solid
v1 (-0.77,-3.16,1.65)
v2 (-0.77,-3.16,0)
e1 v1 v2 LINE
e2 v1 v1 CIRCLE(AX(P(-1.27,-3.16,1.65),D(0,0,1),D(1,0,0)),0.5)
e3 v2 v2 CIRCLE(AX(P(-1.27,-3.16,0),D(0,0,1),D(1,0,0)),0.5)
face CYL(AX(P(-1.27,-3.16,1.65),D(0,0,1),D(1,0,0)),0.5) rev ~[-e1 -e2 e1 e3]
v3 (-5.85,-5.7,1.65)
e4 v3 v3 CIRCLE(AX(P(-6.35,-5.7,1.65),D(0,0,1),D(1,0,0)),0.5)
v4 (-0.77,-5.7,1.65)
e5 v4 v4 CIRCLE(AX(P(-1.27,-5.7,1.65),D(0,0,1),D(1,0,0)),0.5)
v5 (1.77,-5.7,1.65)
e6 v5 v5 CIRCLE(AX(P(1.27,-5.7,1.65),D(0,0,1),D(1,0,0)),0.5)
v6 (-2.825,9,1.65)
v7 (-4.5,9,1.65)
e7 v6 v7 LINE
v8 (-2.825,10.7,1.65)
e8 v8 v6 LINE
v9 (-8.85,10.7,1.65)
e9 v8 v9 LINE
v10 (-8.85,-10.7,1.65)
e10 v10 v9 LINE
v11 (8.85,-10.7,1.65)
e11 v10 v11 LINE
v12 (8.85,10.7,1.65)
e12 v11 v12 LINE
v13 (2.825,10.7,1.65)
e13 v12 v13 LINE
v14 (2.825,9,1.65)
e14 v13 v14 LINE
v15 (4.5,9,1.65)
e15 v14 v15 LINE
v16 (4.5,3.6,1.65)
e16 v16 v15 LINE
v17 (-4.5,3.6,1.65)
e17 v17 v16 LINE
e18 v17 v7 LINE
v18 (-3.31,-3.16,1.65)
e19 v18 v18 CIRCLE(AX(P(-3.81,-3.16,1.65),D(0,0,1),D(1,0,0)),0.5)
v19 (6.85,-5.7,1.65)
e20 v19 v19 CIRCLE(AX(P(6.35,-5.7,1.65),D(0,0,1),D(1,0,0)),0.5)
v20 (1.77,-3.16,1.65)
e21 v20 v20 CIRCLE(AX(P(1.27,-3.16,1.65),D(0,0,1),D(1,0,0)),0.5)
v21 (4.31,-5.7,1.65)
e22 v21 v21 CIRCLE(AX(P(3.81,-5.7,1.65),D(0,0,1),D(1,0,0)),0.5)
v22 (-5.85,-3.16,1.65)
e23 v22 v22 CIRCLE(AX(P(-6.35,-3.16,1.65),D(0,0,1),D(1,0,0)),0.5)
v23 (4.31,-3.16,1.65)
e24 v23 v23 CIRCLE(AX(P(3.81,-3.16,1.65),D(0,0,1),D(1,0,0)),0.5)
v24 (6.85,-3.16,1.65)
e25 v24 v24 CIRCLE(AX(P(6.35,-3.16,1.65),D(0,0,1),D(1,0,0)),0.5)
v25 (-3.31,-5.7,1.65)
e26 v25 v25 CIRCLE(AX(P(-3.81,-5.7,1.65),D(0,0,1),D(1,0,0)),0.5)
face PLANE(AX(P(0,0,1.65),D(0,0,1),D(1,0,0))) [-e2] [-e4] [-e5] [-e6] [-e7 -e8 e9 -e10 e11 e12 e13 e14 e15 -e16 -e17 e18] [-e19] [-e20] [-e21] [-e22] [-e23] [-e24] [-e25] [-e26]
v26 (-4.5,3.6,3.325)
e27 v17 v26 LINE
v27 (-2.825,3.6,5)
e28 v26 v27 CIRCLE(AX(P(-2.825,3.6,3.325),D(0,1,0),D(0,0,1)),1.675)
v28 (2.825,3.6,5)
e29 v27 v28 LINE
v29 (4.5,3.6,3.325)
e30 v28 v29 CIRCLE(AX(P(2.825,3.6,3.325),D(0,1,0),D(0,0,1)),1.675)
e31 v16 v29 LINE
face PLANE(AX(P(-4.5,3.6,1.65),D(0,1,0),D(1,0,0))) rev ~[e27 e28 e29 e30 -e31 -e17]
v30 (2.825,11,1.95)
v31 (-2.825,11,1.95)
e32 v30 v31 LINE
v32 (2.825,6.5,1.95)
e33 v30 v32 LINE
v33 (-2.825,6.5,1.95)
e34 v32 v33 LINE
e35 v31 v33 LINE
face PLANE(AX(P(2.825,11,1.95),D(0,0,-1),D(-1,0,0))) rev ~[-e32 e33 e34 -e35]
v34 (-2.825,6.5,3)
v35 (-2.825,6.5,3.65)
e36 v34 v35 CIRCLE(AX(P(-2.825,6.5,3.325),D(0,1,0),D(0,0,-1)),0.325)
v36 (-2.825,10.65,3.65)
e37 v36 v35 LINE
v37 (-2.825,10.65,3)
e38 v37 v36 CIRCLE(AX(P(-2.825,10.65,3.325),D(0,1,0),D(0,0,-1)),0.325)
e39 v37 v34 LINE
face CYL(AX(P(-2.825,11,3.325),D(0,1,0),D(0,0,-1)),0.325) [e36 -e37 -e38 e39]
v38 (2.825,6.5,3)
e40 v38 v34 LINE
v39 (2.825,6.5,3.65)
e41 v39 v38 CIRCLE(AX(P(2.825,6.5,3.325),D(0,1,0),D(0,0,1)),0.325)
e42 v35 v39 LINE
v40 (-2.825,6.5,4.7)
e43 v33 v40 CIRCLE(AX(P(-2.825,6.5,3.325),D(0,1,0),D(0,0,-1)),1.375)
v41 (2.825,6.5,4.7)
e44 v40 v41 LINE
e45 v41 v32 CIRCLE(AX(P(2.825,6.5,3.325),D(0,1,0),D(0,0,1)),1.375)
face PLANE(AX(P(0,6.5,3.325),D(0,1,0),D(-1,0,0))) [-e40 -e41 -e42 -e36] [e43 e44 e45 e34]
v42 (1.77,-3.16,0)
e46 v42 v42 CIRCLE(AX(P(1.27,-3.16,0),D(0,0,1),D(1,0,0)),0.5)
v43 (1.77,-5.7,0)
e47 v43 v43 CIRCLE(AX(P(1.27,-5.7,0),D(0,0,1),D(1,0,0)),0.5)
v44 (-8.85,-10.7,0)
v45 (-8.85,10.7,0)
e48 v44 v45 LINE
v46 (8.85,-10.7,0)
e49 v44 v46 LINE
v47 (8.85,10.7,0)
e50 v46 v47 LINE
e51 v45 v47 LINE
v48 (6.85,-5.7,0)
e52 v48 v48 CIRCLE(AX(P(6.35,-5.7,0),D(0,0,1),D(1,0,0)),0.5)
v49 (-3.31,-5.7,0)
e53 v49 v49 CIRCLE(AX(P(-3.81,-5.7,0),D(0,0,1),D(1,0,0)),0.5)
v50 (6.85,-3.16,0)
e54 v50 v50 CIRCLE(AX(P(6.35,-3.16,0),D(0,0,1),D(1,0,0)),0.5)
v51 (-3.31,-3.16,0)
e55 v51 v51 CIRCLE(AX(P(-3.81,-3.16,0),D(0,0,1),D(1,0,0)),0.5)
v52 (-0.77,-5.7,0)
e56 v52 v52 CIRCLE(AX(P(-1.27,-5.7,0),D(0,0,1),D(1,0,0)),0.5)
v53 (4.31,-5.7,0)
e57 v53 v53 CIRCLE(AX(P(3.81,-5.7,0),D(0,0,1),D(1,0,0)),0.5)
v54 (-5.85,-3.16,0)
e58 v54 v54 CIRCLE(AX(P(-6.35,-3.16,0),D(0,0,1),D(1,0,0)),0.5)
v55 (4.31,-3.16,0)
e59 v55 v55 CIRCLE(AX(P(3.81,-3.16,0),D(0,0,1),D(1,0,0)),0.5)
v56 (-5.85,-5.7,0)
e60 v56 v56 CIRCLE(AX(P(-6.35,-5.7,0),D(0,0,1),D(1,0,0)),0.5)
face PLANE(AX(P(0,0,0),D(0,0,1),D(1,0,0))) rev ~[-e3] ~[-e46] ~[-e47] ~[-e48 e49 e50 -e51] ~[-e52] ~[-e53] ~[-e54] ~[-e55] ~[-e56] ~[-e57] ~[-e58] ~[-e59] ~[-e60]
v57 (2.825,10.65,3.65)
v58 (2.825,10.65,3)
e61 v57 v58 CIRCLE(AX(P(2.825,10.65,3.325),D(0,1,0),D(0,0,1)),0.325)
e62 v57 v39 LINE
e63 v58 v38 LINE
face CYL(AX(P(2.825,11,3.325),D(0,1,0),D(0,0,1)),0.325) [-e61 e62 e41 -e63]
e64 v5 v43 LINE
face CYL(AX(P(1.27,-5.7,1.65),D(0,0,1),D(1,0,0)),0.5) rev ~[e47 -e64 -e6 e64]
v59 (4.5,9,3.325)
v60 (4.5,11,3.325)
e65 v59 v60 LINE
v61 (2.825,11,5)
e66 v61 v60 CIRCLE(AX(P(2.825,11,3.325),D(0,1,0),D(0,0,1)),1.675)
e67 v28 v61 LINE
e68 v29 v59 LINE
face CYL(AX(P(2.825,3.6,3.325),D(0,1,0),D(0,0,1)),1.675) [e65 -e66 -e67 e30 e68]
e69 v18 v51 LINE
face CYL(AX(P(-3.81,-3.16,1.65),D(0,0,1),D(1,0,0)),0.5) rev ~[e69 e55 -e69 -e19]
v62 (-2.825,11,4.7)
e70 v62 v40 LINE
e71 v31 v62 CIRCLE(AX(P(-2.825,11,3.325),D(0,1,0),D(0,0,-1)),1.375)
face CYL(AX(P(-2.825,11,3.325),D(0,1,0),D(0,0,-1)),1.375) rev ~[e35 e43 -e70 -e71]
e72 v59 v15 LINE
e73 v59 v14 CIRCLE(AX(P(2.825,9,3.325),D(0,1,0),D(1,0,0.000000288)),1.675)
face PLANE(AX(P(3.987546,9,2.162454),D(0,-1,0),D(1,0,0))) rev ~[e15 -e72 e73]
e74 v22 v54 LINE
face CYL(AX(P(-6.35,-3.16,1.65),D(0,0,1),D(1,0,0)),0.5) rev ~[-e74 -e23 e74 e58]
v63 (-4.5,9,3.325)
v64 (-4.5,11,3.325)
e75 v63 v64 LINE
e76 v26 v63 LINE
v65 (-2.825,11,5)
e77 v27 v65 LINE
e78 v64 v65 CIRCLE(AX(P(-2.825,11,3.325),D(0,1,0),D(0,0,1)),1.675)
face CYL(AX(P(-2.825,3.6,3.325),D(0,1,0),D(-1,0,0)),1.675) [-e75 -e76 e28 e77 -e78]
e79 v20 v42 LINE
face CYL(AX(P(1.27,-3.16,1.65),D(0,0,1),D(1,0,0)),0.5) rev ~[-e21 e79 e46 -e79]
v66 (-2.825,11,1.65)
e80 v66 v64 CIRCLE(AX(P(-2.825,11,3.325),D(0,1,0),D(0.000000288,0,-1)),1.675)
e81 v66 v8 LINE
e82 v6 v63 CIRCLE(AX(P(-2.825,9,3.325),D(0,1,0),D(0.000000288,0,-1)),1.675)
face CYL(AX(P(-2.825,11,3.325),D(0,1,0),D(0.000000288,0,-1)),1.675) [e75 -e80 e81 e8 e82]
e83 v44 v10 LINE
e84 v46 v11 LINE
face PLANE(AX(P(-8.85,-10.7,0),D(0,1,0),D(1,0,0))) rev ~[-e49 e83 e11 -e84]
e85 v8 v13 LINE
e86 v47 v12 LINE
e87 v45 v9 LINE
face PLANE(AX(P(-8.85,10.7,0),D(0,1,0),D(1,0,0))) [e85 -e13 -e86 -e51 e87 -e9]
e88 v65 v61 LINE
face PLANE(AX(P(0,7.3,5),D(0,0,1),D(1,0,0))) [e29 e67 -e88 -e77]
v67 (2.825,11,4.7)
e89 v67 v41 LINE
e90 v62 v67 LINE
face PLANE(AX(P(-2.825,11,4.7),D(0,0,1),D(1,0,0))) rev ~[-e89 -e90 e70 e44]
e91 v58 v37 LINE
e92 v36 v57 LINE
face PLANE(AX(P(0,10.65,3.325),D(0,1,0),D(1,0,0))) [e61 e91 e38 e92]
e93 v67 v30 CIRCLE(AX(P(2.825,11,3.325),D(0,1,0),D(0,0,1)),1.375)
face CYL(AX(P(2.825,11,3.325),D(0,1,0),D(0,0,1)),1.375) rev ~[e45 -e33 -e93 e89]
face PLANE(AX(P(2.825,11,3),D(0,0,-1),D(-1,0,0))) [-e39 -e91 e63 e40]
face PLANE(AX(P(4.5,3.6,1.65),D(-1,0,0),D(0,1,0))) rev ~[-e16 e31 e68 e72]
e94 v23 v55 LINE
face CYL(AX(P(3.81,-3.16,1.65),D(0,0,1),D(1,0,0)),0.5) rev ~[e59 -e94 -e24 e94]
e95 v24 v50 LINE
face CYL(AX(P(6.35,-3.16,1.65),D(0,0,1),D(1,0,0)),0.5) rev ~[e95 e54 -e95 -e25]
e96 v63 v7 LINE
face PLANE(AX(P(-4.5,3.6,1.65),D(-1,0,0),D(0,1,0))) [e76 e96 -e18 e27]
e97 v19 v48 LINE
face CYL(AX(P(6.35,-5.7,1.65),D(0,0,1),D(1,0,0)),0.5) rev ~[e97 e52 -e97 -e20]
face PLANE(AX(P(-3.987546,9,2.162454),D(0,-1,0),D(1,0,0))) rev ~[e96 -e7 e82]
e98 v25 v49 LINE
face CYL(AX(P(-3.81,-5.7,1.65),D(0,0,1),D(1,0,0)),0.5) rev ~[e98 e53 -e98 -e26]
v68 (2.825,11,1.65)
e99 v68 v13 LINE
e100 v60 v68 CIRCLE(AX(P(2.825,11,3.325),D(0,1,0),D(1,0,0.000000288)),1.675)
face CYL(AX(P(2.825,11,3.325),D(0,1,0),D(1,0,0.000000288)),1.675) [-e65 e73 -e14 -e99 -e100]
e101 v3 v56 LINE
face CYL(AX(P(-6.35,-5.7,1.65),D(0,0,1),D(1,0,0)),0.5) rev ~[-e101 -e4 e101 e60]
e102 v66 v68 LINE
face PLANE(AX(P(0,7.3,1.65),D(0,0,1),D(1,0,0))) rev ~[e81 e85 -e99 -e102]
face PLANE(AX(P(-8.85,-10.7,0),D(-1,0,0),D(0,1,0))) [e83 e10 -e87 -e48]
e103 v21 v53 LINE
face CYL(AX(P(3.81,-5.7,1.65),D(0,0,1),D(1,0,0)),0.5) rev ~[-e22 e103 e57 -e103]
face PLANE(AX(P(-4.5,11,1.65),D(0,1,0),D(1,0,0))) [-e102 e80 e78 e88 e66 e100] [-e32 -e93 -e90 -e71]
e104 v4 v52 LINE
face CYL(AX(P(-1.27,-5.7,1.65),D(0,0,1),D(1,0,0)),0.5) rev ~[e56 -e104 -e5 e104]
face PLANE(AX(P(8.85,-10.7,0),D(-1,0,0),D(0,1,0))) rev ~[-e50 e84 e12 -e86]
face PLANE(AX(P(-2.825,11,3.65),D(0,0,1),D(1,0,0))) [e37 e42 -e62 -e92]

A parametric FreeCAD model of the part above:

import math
import FreeCAD as App
import Part
import Sketcher

V = App.Vector
Q = App.Units.Quantity


def edges_at(feature, points):
    """Names of the edges that pass closest to the given points."""
    edges = feature.Shape.Edges
    near = lambda p: min(range(len(edges)), key=lambda i: edges[i].distToShape(Part.Vertex(*p))[0])
    return sorted({f"Edge{near(p) + 1}" for p in points})


def add_polygon(sketch, points):
    """Adds a closed chain of lines whose ends are joined by coincident constraints."""
    first, n = sketch.GeometryCount, len(points)
    for a, b in zip(points, points[1:] + points[:1]):
        sketch.addGeometry(Part.LineSegment(App.Vector(*a, 0), App.Vector(*b, 0)), False)
    for i in range(n):
        sketch.addConstraint(Sketcher.Constraint("Coincident", first + i, 2, first + (i + 1) % n, 1))

doc = App.newDocument("Part")
body = doc.addObject("PartDesign::Body", "Body")

# Sketch on XY plane
sketch1 = body.newObject("Sketcher::SketchObject", "Sketch")
sketch1.AttachmentSupport = (doc.getObject("XY_Plane"), [""])
sketch1.MapMode = "FlatFace"
add_polygon(sketch1, [(-9, 11), (-9, -11), (9, -11), (9, 11)])  # lines 0-3
sketch1.addConstraint(Sketcher.Constraint("Vertical", 0))
sketch1.addConstraint(Sketcher.Constraint("Horizontal", 1))
sketch1.addConstraint(Sketcher.Constraint("Vertical", 2))
sketch1.addConstraint(Sketcher.Constraint("Horizontal", 3))
sketch1.addConstraint(Sketcher.Constraint("Symmetric", 0, 2, 2, 2, -1, 1))
sketch1.addConstraint(Sketcher.Constraint("DistanceX", 1, 1, 1, 2, Q("17.7 mm")))
sketch1.addConstraint(Sketcher.Constraint("DistanceY", 0, 2, 0, 1, Q("21.4 mm")))
pad1 = body.newObject("PartDesign::Pad", "Pad")
pad1.Profile = sketch1
pad1.Length = 1.65

# Sketch on XY plane
sketch2 = body.newObject("Sketcher::SketchObject", "Sketch001")
sketch2.AttachmentSupport = (doc.getObject("XY_Plane"), [""])
sketch2.MapMode = "FlatFace"
sketch2.AttachmentOffset = App.Placement(V(0, 0, 1.65), App.Rotation())
add_polygon(sketch2, [(-4, 11), (-4, 4), (4, 4), (4, 11)])  # lines 0-3
sketch2.addConstraint(Sketcher.Constraint("Vertical", 0))
sketch2.addConstraint(Sketcher.Constraint("Horizontal", 1))
sketch2.addConstraint(Sketcher.Constraint("Vertical", 2))
sketch2.addConstraint(Sketcher.Constraint("Horizontal", 3))
sketch2.addConstraint(Sketcher.Constraint("DistanceX", 1, 1, 1, 2, Q("9 mm")))
sketch2.addConstraint(Sketcher.Constraint("DistanceY", 0, 2, 0, 1, Q("7.4 mm")))
sketch2.addConstraint(Sketcher.Constraint("DistanceY", -1, 1, 2, 2, Q("11 mm")))
sketch2.addConstraint(Sketcher.Constraint("DistanceX", 0, 2, -1, 1, Q("4.5 mm")))
pad2 = body.newObject("PartDesign::Pad", "Pad001")
pad2.Profile = sketch2
pad2.Length = 3.35

# Sketch on XY plane
sketch3 = body.newObject("Sketcher::SketchObject", "Sketch002")
sketch3.AttachmentSupport = (doc.getObject("XY_Plane"), [""])
sketch3.MapMode = "FlatFace"
sketch3.AttachmentOffset = App.Placement(V(0, 0, 1.65), App.Rotation())
sketch3.addGeometry(Part.Circle(V(-6.3, -3.2, 0), V(0, 0, 1), 0.5), False)
sketch3.addGeometry(Part.Circle(V(-3.8, -3.2, 0), V(0, 0, 1), 0.5), False)
sketch3.addGeometry(Part.Circle(V(-1.3, -3.2, 0), V(0, 0, 1), 0.5), False)
sketch3.addGeometry(Part.Circle(V(1.3, -3.2, 0), V(0, 0, 1), 0.5), False)
sketch3.addGeometry(Part.Circle(V(3.8, -3.2, 0), V(0, 0, 1), 0.5), False)
sketch3.addGeometry(Part.Circle(V(6.3, -3.2, 0), V(0, 0, 1), 0.5), False)
sketch3.addGeometry(Part.Circle(V(-6.3, -5.7, 0), V(0, 0, 1), 0.5), False)
sketch3.addGeometry(Part.Circle(V(-3.8, -5.7, 0), V(0, 0, 1), 0.5), False)
sketch3.addGeometry(Part.Circle(V(-1.3, -5.7, 0), V(0, 0, 1), 0.5), False)
sketch3.addGeometry(Part.Circle(V(1.3, -5.7, 0), V(0, 0, 1), 0.5), False)
sketch3.addGeometry(Part.Circle(V(3.8, -5.7, 0), V(0, 0, 1), 0.5), False)
sketch3.addGeometry(Part.Circle(V(6.3, -5.7, 0), V(0, 0, 1), 0.5), False)
sketch3.addConstraint(Sketcher.Constraint("Equal", 0, 1))
sketch3.addConstraint(Sketcher.Constraint("Equal", 1, 2))
sketch3.addConstraint(Sketcher.Constraint("Equal", 2, 3))
sketch3.addConstraint(Sketcher.Constraint("Equal", 3, 4))
sketch3.addConstraint(Sketcher.Constraint("Equal", 4, 5))
sketch3.addConstraint(Sketcher.Constraint("Equal", 5, 6))
sketch3.addConstraint(Sketcher.Constraint("Equal", 6, 7))
sketch3.addConstraint(Sketcher.Constraint("Equal", 7, 8))
sketch3.addConstraint(Sketcher.Constraint("Equal", 8, 9))
sketch3.addConstraint(Sketcher.Constraint("Equal", 9, 10))
sketch3.addConstraint(Sketcher.Constraint("Equal", 10, 11))
sketch3.addConstraint(Sketcher.Constraint("Symmetric", 2, 3, 3, 3, -2))
sketch3.addConstraint(Sketcher.Constraint("Symmetric", 1, 3, 4, 3, -2))
sketch3.addConstraint(Sketcher.Constraint("Symmetric", 0, 3, 5, 3, -2))
sketch3.addConstraint(Sketcher.Constraint("Symmetric", 8, 3, 9, 3, -2))
sketch3.addConstraint(Sketcher.Constraint("Symmetric", 7, 3, 10, 3, -2))
sketch3.addConstraint(Sketcher.Constraint("Symmetric", 6, 3, 11, 3, -2))
sketch3.addConstraint(Sketcher.Constraint("Horizontal", 0, 3, 1, 3))
sketch3.addConstraint(Sketcher.Constraint("Horizontal", 1, 3, 2, 3))
sketch3.addConstraint(Sketcher.Constraint("Horizontal", 6, 3, 7, 3))
sketch3.addConstraint(Sketcher.Constraint("Horizontal", 7, 3, 8, 3))
sketch3.addConstraint(Sketcher.Constraint("Vertical", 0, 3, 6, 3))
sketch3.addConstraint(Sketcher.Constraint("Vertical", 1, 3, 7, 3))
sketch3.addConstraint(Sketcher.Constraint("Vertical", 2, 3, 8, 3))
sketch3.addConstraint(Sketcher.Constraint("Diameter", 0, Q("1 mm")))
sketch3.addConstraint(Sketcher.Constraint("DistanceY", 6, 3, -1, 1, Q("5.7 mm")))
sketch3.addConstraint(Sketcher.Constraint("DistanceX", 0, 3, 5, 3, Q("12.7 mm")))
sketch3.addConstraint(Sketcher.Constraint("DistanceY", 0, 3, -1, 1, Q("3.16 mm")))
sketch3.addConstraint(Sketcher.Constraint("DistanceX", 1, 3, -1, 1, Q("3.81 mm")))
sketch3.addConstraint(Sketcher.Constraint("DistanceX", 2, 3, -1, 1, Q("1.27 mm")))
pocket1 = body.newObject("PartDesign::Pocket", "Pocket")
pocket1.Profile = sketch3
pocket1.Type = "ThroughAll"
doc.recompute()

fillet = body.newObject("PartDesign::Fillet", "Fillet")
fillet.Base = (pocket1, edges_at(pocket1, [(-4.5, 7.3, 5), (4.5, 7.3, 5)]))
fillet.Radius = 1.675

# Sketch on XZ plane
sketch4 = body.newObject("Sketcher::SketchObject", "Sketch003")
sketch4.AttachmentSupport = (doc.getObject("XZ_Plane"), [""])
sketch4.MapMode = "FlatFace"
sketch4.AttachmentOffset = App.Placement(V(0, 0, -11), App.Rotation())
sketch4.addGeometry(Part.ArcOfCircle(Part.Circle(V(2.8, 3.3, 0), V(0, 0, 1), 1.7), math.radians(-90), math.radians(0)), False)
sketch4.addGeometry(Part.LineSegment(V(4.5, 3.3, 0), V(4.5, 1.6, 0)), False)
sketch4.addGeometry(Part.LineSegment(V(4.5, 1.6, 0), V(2.8, 1.6, 0)), False)
sketch4.addGeometry(Part.ArcOfCircle(Part.Circle(V(-2.8, 3.3, 0), V(0, 0, 1), 1.7), math.radians(180), math.radians(270)), False)
sketch4.addGeometry(Part.LineSegment(V(-2.8, 1.6, 0), V(-4.5, 1.6, 0)), False)
sketch4.addGeometry(Part.LineSegment(V(-4.5, 1.6, 0), V(-4.5, 3.3, 0)), False)
sketch4.addConstraint(Sketcher.Constraint("Tangent", 0, 2, 1, 1))
sketch4.addConstraint(Sketcher.Constraint("Coincident", 1, 2, 2, 1))
sketch4.addConstraint(Sketcher.Constraint("Tangent", 2, 2, 0, 1))
sketch4.addConstraint(Sketcher.Constraint("Tangent", 3, 2, 4, 1))
sketch4.addConstraint(Sketcher.Constraint("Coincident", 4, 2, 5, 1))
sketch4.addConstraint(Sketcher.Constraint("Tangent", 5, 2, 3, 1))
sketch4.addConstraint(Sketcher.Constraint("Vertical", 1))
sketch4.addConstraint(Sketcher.Constraint("Horizontal", 2))
sketch4.addConstraint(Sketcher.Constraint("Horizontal", 4))
sketch4.addConstraint(Sketcher.Constraint("Vertical", 5))
sketch4.addConstraint(Sketcher.Constraint("Equal", 0, 3))
sketch4.addConstraint(Sketcher.Constraint("Symmetric", 0, 3, 3, 3, -2))
sketch4.addConstraint(Sketcher.Constraint("Radius", 0, Q("1.675 mm")))
sketch4.addConstraint(Sketcher.Constraint("DistanceX", 4, 2, 1, 2, Q("9 mm")))
sketch4.addConstraint(Sketcher.Constraint("DistanceY", -1, 1, 1, 2, Q("1.65 mm")))
pocket2 = body.newObject("PartDesign::Pocket", "Pocket001")
pocket2.Profile = sketch4
pocket2.Length = 2
pocket2.Reversed = True

# Sketch on XZ plane
sketch5 = body.newObject("Sketcher::SketchObject", "Sketch004")
sketch5.AttachmentSupport = (doc.getObject("XZ_Plane"), [""])
sketch5.MapMode = "FlatFace"
sketch5.AttachmentOffset = App.Placement(V(0, 0, -11), App.Rotation())
sketch5.addGeometry(Part.ArcOfCircle(Part.Circle(V(2.83, 3.33, 0), V(0, 0, 1), 1.38), math.radians(-90), math.radians(90)), False)
sketch5.addGeometry(Part.LineSegment(V(2.83, 1.95, 0), V(-2.83, 1.95, 0)), False)
sketch5.addGeometry(Part.ArcOfCircle(Part.Circle(V(-2.83, 3.33, 0), V(0, 0, 1), 1.38), math.radians(90), math.radians(270)), False)
sketch5.addGeometry(Part.LineSegment(V(-2.83, 4.7, 0), V(2.83, 4.7, 0)), False)
sketch5.addGeometry(Part.ArcOfCircle(Part.Circle(V(2.83, 3.33, 0), V(0, 0, 1), 0.33), math.radians(-90), math.radians(90)), False)
sketch5.addGeometry(Part.LineSegment(V(2.83, 3.65, 0), V(-2.83, 3.65, 0)), False)
sketch5.addGeometry(Part.ArcOfCircle(Part.Circle(V(-2.83, 3.33, 0), V(0, 0, 1), 0.33), math.radians(90), math.radians(270)), False)
sketch5.addGeometry(Part.LineSegment(V(-2.83, 3, 0), V(2.83, 3, 0)), False)
sketch5.addConstraint(Sketcher.Constraint("Tangent", 0, 1, 1, 1))
sketch5.addConstraint(Sketcher.Constraint("Tangent", 1, 2, 2, 2))
sketch5.addConstraint(Sketcher.Constraint("Tangent", 2, 1, 3, 1))
sketch5.addConstraint(Sketcher.Constraint("Tangent", 3, 2, 0, 2))
sketch5.addConstraint(Sketcher.Constraint("Tangent", 4, 2, 5, 1))
sketch5.addConstraint(Sketcher.Constraint("Tangent", 5, 2, 6, 1))
sketch5.addConstraint(Sketcher.Constraint("Tangent", 6, 2, 7, 1))
sketch5.addConstraint(Sketcher.Constraint("Tangent", 7, 2, 4, 1))
sketch5.addConstraint(Sketcher.Constraint("Horizontal", 1))
sketch5.addConstraint(Sketcher.Constraint("Horizontal", 3))
sketch5.addConstraint(Sketcher.Constraint("Horizontal", 5))
sketch5.addConstraint(Sketcher.Constraint("Horizontal", 7))
sketch5.addConstraint(Sketcher.Constraint("Coincident", 4, 3, 0, 3))
sketch5.addConstraint(Sketcher.Constraint("Vertical", 6, 3, 1, 2))
sketch5.addConstraint(Sketcher.Constraint("DistanceY", -1, 1, 6, 2, Q("3 mm")))
sketch5.addConstraint(Sketcher.Constraint("Radius", 0, Q("1.375 mm")))
sketch5.addConstraint(Sketcher.Constraint("Radius", 4, Q("0.325 mm")))
sketch5.addConstraint(Sketcher.Constraint("DistanceX", 1, 2, 1, 1, Q("5.65 mm")))
sketch5.addConstraint(Sketcher.Constraint("DistanceX", -1, 1, 0, 3, Q("2.825 mm")))
pocket3 = body.newObject("PartDesign::Pocket", "Pocket002")
pocket3.Profile = sketch5
pocket3.Length = 4.5
pocket3.Reversed = True

# Sketch on XZ plane
sketch6 = body.newObject("Sketcher::SketchObject", "Sketch005")
sketch6.AttachmentSupport = (doc.getObject("XZ_Plane"), [""])
sketch6.MapMode = "FlatFace"
sketch6.AttachmentOffset = App.Placement(V(0, 0, -11), App.Rotation())
sketch6.addGeometry(Part.LineSegment(V(-2.83, 3.65, 0), V(2.83, 3.65, 0)), False)
sketch6.addGeometry(Part.ArcOfCircle(Part.Circle(V(2.83, 3.33, 0), V(0, 0, 1), 0.33), math.radians(-90), math.radians(90)), False)
sketch6.addGeometry(Part.LineSegment(V(2.83, 3, 0), V(-2.83, 3, 0)), False)
sketch6.addGeometry(Part.ArcOfCircle(Part.Circle(V(-2.83, 3.33, 0), V(0, 0, 1), 0.33), math.radians(90), math.radians(270)), False)
sketch6.addConstraint(Sketcher.Constraint("Tangent", 0, 2, 1, 2))
sketch6.addConstraint(Sketcher.Constraint("Tangent", 1, 1, 2, 1))
sketch6.addConstraint(Sketcher.Constraint("Tangent", 2, 2, 3, 2))
sketch6.addConstraint(Sketcher.Constraint("Tangent", 3, 1, 0, 1))
sketch6.addConstraint(Sketcher.Constraint("Horizontal", 0))
sketch6.addConstraint(Sketcher.Constraint("Horizontal", 2))
sketch6.addConstraint(Sketcher.Constraint("DistanceY", -1, 1, 1, 1, Q("3 mm")))
sketch6.addConstraint(Sketcher.Constraint("Radius", 1, Q("0.325 mm")))
sketch6.addConstraint(Sketcher.Constraint("DistanceX", 0, 1, 0, 2, Q("5.65 mm")))
sketch6.addConstraint(Sketcher.Constraint("DistanceX", -1, 1, 1, 3, Q("2.825 mm")))
pocket4 = body.newObject("PartDesign::Pocket", "Pocket003")
pocket4.Profile = sketch6
pocket4.Length = 0.35
pocket4.Reversed = True

doc.recompute()
